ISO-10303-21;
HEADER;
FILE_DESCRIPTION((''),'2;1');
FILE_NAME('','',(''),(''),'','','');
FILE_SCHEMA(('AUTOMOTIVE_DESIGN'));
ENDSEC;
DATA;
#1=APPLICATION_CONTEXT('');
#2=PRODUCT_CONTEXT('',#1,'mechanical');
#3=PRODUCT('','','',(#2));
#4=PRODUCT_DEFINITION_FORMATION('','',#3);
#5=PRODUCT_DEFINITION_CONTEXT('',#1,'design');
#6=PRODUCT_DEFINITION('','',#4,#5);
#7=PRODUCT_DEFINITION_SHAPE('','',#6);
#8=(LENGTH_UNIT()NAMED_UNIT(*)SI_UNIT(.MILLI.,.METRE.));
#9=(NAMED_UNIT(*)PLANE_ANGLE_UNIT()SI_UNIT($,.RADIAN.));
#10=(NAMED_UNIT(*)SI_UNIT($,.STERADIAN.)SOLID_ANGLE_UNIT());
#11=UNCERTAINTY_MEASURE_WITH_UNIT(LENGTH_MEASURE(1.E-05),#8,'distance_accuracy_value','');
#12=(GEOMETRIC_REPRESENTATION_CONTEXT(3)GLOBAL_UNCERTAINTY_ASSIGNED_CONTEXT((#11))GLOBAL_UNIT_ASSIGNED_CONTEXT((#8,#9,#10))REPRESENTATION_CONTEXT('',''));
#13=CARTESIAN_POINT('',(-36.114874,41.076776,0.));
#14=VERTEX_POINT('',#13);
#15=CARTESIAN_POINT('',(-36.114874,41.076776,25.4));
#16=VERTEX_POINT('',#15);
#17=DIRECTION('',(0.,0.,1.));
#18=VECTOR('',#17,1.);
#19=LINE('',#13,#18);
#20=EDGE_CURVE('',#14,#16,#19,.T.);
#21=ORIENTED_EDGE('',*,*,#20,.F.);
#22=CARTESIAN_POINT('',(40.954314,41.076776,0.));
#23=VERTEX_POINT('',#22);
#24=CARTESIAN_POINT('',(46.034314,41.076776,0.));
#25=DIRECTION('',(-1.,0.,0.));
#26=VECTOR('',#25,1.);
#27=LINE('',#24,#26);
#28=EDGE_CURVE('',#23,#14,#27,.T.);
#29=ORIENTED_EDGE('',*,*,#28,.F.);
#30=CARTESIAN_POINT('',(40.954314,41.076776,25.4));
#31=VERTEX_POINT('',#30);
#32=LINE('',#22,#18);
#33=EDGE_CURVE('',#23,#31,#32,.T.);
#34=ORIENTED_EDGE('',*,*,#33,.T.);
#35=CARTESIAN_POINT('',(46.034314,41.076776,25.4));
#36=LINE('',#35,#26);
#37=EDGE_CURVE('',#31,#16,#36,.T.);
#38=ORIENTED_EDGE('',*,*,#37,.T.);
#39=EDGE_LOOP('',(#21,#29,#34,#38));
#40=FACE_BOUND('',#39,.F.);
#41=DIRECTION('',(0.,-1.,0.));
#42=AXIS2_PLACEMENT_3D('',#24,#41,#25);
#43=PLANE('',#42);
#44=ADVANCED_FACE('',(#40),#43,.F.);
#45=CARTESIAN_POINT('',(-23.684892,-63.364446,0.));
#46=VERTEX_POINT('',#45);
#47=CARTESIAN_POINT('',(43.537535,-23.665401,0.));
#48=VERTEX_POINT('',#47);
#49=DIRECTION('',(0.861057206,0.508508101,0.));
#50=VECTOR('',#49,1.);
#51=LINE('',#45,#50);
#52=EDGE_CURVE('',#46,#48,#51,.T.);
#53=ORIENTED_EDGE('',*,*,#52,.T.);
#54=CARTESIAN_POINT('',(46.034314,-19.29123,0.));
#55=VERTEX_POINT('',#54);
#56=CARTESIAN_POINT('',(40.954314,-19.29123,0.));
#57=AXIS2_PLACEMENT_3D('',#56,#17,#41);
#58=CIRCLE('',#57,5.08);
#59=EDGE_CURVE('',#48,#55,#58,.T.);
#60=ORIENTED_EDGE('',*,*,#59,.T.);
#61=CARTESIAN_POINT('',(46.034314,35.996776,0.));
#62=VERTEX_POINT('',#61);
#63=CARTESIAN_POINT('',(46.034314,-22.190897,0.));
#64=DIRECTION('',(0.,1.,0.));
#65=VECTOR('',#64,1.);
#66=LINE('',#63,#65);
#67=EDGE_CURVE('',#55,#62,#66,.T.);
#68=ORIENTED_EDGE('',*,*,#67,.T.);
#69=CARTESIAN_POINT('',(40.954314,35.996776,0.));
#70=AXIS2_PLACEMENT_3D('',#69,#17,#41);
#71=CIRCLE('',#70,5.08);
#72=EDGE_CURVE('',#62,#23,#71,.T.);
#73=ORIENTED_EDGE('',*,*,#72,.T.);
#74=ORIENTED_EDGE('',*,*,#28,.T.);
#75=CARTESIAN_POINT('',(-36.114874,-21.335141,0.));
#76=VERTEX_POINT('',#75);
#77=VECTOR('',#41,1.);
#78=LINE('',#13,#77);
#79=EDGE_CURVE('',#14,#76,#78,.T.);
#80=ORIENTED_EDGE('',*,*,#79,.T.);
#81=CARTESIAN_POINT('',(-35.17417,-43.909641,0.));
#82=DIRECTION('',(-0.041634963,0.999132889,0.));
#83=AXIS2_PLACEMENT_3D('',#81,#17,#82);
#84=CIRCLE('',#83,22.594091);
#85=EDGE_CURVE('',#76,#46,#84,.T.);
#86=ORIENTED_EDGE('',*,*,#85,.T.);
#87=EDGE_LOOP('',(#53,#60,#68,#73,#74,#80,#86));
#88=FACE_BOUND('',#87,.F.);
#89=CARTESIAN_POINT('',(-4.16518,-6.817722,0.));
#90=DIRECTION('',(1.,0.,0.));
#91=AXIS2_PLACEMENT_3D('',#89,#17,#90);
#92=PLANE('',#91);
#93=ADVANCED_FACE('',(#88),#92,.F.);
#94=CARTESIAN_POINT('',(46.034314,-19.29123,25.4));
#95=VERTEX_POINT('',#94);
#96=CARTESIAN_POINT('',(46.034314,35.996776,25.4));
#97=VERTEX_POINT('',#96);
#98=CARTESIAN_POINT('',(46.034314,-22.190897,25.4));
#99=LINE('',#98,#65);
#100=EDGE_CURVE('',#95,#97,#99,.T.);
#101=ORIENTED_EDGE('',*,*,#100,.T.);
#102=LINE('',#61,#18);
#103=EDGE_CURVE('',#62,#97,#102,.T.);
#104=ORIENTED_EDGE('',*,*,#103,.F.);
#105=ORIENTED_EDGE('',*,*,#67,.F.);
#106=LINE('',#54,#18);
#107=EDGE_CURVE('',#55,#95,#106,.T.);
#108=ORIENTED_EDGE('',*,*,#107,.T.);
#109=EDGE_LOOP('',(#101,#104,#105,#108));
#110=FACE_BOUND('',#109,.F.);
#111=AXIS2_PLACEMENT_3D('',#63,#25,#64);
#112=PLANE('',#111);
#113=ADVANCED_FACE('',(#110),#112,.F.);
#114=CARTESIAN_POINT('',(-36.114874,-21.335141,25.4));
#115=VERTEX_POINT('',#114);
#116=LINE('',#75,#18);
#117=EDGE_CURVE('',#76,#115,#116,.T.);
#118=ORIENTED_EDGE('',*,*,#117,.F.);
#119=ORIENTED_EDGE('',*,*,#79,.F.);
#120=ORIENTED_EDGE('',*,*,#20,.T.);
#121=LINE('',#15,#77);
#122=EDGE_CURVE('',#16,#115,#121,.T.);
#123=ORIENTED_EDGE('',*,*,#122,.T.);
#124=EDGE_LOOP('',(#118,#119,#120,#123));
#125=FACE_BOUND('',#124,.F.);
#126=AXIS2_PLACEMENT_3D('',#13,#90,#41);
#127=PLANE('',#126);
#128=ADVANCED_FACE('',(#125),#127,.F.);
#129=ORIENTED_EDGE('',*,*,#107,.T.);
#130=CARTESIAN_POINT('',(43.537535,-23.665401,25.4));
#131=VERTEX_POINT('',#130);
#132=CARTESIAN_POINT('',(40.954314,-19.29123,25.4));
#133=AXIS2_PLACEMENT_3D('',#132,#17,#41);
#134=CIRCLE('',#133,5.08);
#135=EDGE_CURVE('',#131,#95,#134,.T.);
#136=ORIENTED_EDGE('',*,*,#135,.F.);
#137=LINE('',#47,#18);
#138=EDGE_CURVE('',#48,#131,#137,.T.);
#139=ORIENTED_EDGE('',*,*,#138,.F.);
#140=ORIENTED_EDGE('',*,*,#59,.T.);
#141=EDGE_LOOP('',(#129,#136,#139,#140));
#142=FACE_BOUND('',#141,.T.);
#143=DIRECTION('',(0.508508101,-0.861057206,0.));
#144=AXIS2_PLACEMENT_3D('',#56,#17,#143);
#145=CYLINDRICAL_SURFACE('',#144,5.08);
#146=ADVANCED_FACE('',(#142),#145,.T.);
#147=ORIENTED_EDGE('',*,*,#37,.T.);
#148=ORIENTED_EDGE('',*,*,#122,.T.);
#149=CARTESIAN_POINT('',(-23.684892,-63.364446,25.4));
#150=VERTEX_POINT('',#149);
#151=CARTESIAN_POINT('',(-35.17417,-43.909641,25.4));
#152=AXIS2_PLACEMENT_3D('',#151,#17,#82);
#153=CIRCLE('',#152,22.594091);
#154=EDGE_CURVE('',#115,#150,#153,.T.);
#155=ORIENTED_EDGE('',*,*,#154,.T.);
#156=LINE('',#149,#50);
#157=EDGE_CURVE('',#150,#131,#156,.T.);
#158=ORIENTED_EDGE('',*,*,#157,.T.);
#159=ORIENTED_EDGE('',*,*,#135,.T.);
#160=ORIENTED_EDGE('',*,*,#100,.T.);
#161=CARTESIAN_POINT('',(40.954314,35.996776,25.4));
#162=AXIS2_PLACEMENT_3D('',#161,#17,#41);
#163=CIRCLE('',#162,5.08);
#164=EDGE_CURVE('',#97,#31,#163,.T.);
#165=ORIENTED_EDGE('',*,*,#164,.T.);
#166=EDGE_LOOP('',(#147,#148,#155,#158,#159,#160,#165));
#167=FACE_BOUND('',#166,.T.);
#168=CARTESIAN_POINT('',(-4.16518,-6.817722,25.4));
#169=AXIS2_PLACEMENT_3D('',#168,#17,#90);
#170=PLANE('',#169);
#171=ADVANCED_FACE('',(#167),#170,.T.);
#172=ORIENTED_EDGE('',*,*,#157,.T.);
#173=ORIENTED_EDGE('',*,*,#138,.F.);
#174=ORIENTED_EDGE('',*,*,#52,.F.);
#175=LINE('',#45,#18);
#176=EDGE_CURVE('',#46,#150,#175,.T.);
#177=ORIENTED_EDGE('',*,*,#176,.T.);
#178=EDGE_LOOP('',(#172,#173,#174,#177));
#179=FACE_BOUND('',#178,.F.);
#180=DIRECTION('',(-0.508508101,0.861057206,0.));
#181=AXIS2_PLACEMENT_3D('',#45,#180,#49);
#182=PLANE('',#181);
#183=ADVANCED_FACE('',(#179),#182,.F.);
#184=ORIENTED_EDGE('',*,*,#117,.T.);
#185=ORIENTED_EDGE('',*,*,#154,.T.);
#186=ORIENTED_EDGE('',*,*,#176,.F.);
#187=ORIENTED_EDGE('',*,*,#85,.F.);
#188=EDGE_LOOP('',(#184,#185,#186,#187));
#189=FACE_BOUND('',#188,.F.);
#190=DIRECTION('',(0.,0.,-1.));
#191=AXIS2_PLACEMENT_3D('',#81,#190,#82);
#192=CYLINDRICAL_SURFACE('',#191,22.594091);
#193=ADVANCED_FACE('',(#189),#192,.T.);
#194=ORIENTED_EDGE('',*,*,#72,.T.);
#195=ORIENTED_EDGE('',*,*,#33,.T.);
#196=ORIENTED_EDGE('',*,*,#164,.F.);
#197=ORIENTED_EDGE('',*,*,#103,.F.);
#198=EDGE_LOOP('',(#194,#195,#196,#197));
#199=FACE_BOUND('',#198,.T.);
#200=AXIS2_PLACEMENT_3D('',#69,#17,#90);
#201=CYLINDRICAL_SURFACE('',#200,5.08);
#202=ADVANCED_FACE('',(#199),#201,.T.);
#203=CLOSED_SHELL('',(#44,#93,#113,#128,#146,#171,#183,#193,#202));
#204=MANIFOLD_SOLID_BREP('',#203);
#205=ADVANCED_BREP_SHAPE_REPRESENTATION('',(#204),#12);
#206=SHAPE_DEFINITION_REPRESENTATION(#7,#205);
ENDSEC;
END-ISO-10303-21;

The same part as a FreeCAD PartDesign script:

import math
import FreeCAD as App
import Part
import Sketcher
from FreeCAD import Vector
Q = App.Units.Quantity


def edges_at(feature, points):
    """Names of the edges that pass closest to the given points."""
    edges = feature.Shape.Edges
    near = lambda p: min(range(len(edges)), key=lambda i: edges[i].distToShape(Part.Vertex(*p))[0])
    return sorted({f"Edge{near(p) + 1}" for p in points})

doc = App.newDocument("Part")
body = doc.addObject("PartDesign::Body", "Body")

sketch1 = body.newObject("Sketcher::SketchObject", "Sketch")
sketch1.AttachmentSupport = (doc.getObject("XY_Plane"), [""])
sketch1.MapMode = "FlatFace"
sketch1.addGeometry([
    Part.LineSegment(Vector(-36.114874, 41.076776, 0), Vector(-36.114874, -21.335141, 0)),
    Part.ArcOfCircle(Part.Circle(Vector(-35.17417, -43.909641, 0), Vector(0, 0, 1), 22.594091), math.radians(92.386197), math.radians(300.564504)),
    Part.LineSegment(Vector(-23.684892, -63.364446, 0), Vector(46.034314, -22.190897, 0)),
    Part.LineSegment(Vector(46.034314, -22.190897, 0), Vector(46.034314, 41.076776, 0)),
    Part.LineSegment(Vector(46.034314, 41.076776, 0), Vector(-36.114874, 41.076776, 0)),
], False)
sketch1.addConstraint([
    Sketcher.Constraint("Coincident", 0, 2, 1, 1),
    Sketcher.Constraint("Tangent", 1, 2, 2, 1),
    Sketcher.Constraint("Coincident", 2, 2, 3, 1),
    Sketcher.Constraint("Coincident", 3, 2, 4, 1),
    Sketcher.Constraint("Coincident", 4, 2, 0, 1),
    Sketcher.Constraint("Vertical", 0),
    Sketcher.Constraint("Vertical", 3),
    Sketcher.Constraint("Horizontal", 4),
    Sketcher.Constraint("Radius", 1, Q("22.594091 mm")),
    Sketcher.Constraint("DistanceX", 4, 2, 4, 1, Q("82.149188 mm")),
    Sketcher.Constraint("DistanceY", 1, 3, 0, 2, Q("22.5745 mm")),
    Sketcher.Constraint("DistanceY", 0, 2, 0, 1, Q("62.411917 mm")),
    Sketcher.Constraint("DistanceY", 3, 1, 3, 2, Q("63.267673 mm")),
    Sketcher.Constraint("DistanceX", 1, 3, -1, 1, Q("35.17417 mm")),
    Sketcher.Constraint("DistanceY", 1, 3, -1, 1, Q("43.909641 mm")),
])
pad1 = body.newObject("PartDesign::Pad", "Pad")
pad1.Profile = sketch1
pad1.Length = Q("1 in")
doc.recompute()

fillet = body.newObject("PartDesign::Fillet", "Fillet")
fillet.Base = (pad1, edges_at(pad1, [(46.034, -22.191, 12.7)]))
fillet.Radius = Q("0.2 in")
doc.recompute()

fillet2 = body.newObject("PartDesign::Fillet", "Fillet001")
fillet2.Base = (fillet, edges_at(fillet, [(46.034, 41.077, 12.7)]))
fillet2.Radius = Q("0.2 in")

doc.recompute()
